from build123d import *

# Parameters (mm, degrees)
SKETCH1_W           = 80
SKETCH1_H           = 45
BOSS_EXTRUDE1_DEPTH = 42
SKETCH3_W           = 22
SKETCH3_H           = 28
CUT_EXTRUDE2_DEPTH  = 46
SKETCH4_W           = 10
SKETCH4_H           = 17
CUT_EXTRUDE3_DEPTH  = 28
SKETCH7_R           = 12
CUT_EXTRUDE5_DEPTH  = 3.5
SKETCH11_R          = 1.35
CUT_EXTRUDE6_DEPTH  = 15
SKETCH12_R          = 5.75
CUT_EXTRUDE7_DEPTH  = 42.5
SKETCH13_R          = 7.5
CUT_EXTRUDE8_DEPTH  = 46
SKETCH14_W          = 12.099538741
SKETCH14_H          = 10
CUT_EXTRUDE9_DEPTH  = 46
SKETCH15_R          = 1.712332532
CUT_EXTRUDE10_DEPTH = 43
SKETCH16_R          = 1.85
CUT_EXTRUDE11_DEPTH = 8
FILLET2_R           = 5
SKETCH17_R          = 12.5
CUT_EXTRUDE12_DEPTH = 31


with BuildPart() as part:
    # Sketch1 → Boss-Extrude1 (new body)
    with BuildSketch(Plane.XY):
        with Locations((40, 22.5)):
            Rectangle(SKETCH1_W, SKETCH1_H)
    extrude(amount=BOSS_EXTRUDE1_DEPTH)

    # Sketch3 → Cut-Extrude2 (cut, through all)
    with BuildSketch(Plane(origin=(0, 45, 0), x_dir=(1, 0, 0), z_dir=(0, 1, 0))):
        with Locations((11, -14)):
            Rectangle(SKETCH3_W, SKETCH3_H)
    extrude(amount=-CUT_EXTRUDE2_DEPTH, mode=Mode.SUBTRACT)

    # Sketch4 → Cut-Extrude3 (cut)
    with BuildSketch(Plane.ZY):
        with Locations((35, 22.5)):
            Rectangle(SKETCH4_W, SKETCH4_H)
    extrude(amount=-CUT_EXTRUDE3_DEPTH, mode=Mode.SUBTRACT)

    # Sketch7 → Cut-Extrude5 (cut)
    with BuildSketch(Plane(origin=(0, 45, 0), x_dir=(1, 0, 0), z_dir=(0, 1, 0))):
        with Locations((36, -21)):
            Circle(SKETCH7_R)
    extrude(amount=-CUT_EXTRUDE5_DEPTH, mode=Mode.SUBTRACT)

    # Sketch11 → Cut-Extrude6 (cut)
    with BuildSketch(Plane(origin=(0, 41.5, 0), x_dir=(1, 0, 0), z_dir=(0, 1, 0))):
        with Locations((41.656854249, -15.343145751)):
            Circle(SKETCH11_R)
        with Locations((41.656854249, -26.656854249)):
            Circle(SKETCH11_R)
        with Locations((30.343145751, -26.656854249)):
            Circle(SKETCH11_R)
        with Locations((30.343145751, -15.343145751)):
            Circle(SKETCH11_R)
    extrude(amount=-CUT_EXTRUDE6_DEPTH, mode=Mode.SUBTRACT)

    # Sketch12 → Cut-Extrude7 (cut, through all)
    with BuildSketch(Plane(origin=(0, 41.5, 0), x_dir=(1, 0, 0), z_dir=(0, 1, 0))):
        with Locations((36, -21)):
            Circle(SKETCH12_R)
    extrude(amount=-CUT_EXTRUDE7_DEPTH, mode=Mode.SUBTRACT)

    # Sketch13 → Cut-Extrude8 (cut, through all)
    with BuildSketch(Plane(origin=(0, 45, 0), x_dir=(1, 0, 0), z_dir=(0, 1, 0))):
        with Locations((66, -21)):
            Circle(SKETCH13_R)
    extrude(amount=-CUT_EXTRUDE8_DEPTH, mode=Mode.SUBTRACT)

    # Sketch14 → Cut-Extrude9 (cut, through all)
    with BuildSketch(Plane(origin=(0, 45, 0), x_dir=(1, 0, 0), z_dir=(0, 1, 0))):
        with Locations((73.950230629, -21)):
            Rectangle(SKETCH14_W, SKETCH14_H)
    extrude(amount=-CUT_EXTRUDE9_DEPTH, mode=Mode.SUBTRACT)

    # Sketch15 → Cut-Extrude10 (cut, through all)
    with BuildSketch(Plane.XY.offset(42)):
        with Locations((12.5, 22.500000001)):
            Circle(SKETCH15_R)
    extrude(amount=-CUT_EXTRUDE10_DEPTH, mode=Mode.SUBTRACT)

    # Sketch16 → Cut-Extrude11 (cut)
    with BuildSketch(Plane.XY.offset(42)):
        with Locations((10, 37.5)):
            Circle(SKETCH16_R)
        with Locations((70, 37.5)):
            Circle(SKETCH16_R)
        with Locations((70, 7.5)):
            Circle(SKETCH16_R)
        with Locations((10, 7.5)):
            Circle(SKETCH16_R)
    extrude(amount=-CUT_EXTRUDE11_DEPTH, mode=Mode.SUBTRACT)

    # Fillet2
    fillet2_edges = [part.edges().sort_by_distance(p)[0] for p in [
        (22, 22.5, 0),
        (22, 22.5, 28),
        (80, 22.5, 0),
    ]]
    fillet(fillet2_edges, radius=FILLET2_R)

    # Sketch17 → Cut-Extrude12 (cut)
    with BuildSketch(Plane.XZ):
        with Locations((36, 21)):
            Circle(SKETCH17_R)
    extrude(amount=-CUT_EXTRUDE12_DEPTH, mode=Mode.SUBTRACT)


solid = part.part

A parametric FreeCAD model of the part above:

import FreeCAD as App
import Part
import Sketcher
from FreeCAD import Vector
Q = App.Units.Quantity


def edges_at(feature, points):
    """Names of the edges that pass closest to the given points."""
    edges = feature.Shape.Edges
    near = lambda p: min(range(len(edges)), key=lambda i: edges[i].distToShape(Part.Vertex(*p))[0])
    return sorted({f"Edge{near(p) + 1}" for p in points})

doc = App.newDocument("Part")
params = doc.addObject("Spreadsheet::Sheet", "Params")
for row, (alias, value) in enumerate([
    ("sketch1_width", "80 mm"),
    ("sketch1_height", "45 mm"),
    ("pad1_length", "42 mm"),
    ("sketch2_width", "22 mm"),
    ("sketch2_height", "28 mm"),
    ("sketch3_width", "17 mm"),
    ("sketch3_height", "10 mm"),
    ("pocket2_length", "28 mm"),
    ("sketch4_diameter", "24 mm"),
    ("pocket3_length", "3.5 mm"),
    ("sketch5_diameter", "2.7 mm"),
    ("pocket4_length", "15 mm"),
    ("sketch6_diameter", "11.5 mm"),
    ("sketch7_diameter", "15 mm"),
    ("sketch8_height", "10 mm"),
    ("sketch10_diameter", "3.7 mm"),
    ("pocket9_length", "8 mm"),
    ("fillet_radius", "5 mm"),
    ("sketch11_diameter", "25 mm"),
    ("pocket10_length", "31 mm"),
], start=1):
    params.set(f"A{row}", alias)
    params.set(f"B{row}", "=" + value)
    params.setAlias(f"B{row}", alias)

body = doc.addObject("PartDesign::Body", "Body")

# Sketch on XY plane
sketch1 = body.newObject("Sketcher::SketchObject", "Sketch")
sketch1.AttachmentSupport = (doc.getObject("XY_Plane"), [""])
sketch1.MapMode = "FlatFace"
sketch1.addGeometry(Part.LineSegment(Vector(0, 45, 0), Vector(0, 0, 0)), False)
sketch1.addGeometry(Part.LineSegment(Vector(0, 0, 0), Vector(80, 0, 0)), False)
sketch1.addGeometry(Part.LineSegment(Vector(80, 0, 0), Vector(80, 45, 0)), False)
sketch1.addGeometry(Part.LineSegment(Vector(80, 45, 0), Vector(0, 45, 0)), False)
sketch1.addConstraint(Sketcher.Constraint("Coincident", 0, 2, 1, 1))
sketch1.addConstraint(Sketcher.Constraint("Coincident", 1, 2, 2, 1))
sketch1.addConstraint(Sketcher.Constraint("Coincident", 2, 2, 3, 1))
sketch1.addConstraint(Sketcher.Constraint("Coincident", 3, 2, 0, 1))
sketch1.addConstraint(Sketcher.Constraint("Vertical", 0))
sketch1.addConstraint(Sketcher.Constraint("Horizontal", 1))
sketch1.addConstraint(Sketcher.Constraint("Vertical", 2))
sketch1.addConstraint(Sketcher.Constraint("Horizontal", 3))
sketch1.addConstraint(Sketcher.Constraint("Coincident", 0, 2, -1, 1))
sketch1.addConstraint(Sketcher.Constraint("DistanceX", 1, 1, 1, 2, Q("80 mm")))
sketch1.addConstraint(Sketcher.Constraint("DistanceY", 0, 2, 0, 1, Q("45 mm")))
sketch1.setExpression("Constraints[9]", "Params.sketch1_width")
sketch1.setExpression("Constraints[10]", "Params.sketch1_height")
pad1 = body.newObject("PartDesign::Pad", "Pad")
pad1.Profile = sketch1
pad1.setExpression("Length", "Params.pad1_length")

# Sketch on XZ plane
sketch2 = body.newObject("Sketcher::SketchObject", "Sketch001")
sketch2.AttachmentSupport = (doc.getObject("XZ_Plane"), [""])
sketch2.MapMode = "FlatFace"
sketch2.AttachmentOffset = App.Placement(Vector(0, 0, -45), App.Rotation())
sketch2.addGeometry(Part.LineSegment(Vector(0, 0, 0), Vector(0, 28, 0)), False)
sketch2.addGeometry(Part.LineSegment(Vector(0, 28, 0), Vector(22, 28, 0)), False)
sketch2.addGeometry(Part.LineSegment(Vector(22, 28, 0), Vector(22, 0, 0)), False)
sketch2.addGeometry(Part.LineSegment(Vector(22, 0, 0), Vector(0, 0, 0)), False)
sketch2.addConstraint(Sketcher.Constraint("Coincident", 0, 2, 1, 1))
sketch2.addConstraint(Sketcher.Constraint("Coincident", 1, 2, 2, 1))
sketch2.addConstraint(Sketcher.Constraint("Coincident", 2, 2, 3, 1))
sketch2.addConstraint(Sketcher.Constraint("Coincident", 3, 2, 0, 1))
sketch2.addConstraint(Sketcher.Constraint("Vertical", 0))
sketch2.addConstraint(Sketcher.Constraint("Horizontal", 1))
sketch2.addConstraint(Sketcher.Constraint("Vertical", 2))
sketch2.addConstraint(Sketcher.Constraint("Horizontal", 3))
sketch2.addConstraint(Sketcher.Constraint("Coincident", 3, 2, -1, 1))
sketch2.addConstraint(Sketcher.Constraint("DistanceX", 1, 1, 1, 2, Q("22 mm")))
sketch2.addConstraint(Sketcher.Constraint("DistanceY", 0, 1, 0, 2, Q("28 mm")))
sketch2.setExpression("Constraints[9]", "Params.sketch2_width")
sketch2.setExpression("Constraints[10]", "Params.sketch2_height")
pocket1 = body.newObject("PartDesign::Pocket", "Pocket")
pocket1.Profile = sketch2
pocket1.Type = "ThroughAll"
pocket1.Reversed = True

# Sketch on YZ plane
sketch3 = body.newObject("Sketcher::SketchObject", "Sketch002")
sketch3.AttachmentSupport = (doc.getObject("YZ_Plane"), [""])
sketch3.MapMode = "FlatFace"
sketch3.addGeometry(Part.LineSegment(Vector(31, 30, 0), Vector(14, 30, 0)), False)
sketch3.addGeometry(Part.LineSegment(Vector(14, 30, 0), Vector(14, 40, 0)), False)
sketch3.addGeometry(Part.LineSegment(Vector(14, 40, 0), Vector(31, 40, 0)), False)
sketch3.addGeometry(Part.LineSegment(Vector(31, 40, 0), Vector(31, 30, 0)), False)
sketch3.addConstraint(Sketcher.Constraint("Coincident", 0, 2, 1, 1))
sketch3.addConstraint(Sketcher.Constraint("Coincident", 1, 2, 2, 1))
sketch3.addConstraint(Sketcher.Constraint("Coincident", 2, 2, 3, 1))
sketch3.addConstraint(Sketcher.Constraint("Coincident", 3, 2, 0, 1))
sketch3.addConstraint(Sketcher.Constraint("Horizontal", 0))
sketch3.addConstraint(Sketcher.Constraint("Vertical", 1))
sketch3.addConstraint(Sketcher.Constraint("Horizontal", 2))
sketch3.addConstraint(Sketcher.Constraint("Vertical", 3))
sketch3.addConstraint(Sketcher.Constraint("DistanceX", 0, 2, 0, 1, Q("17 mm")))
sketch3.addConstraint(Sketcher.Constraint("DistanceY", 1, 1, 1, 2, Q("10 mm")))
sketch3.addConstraint(Sketcher.Constraint("DistanceX", -1, 1, 0, 2, Q("14 mm")))
sketch3.addConstraint(Sketcher.Constraint("DistanceY", -1, 1, 0, 2, Q("30 mm")))
sketch3.setExpression("Constraints[8]", "Params.sketch3_width")
sketch3.setExpression("Constraints[9]", "Params.sketch3_height")
pocket2 = body.newObject("PartDesign::Pocket", "Pocket001")
pocket2.Profile = sketch3
pocket2.setExpression("Length", "Params.pocket2_length")
pocket2.Reversed = True

# Sketch on XZ plane
sketch4 = body.newObject("Sketcher::SketchObject", "Sketch003")
sketch4.AttachmentSupport = (doc.getObject("XZ_Plane"), [""])
sketch4.MapMode = "FlatFace"
sketch4.AttachmentOffset = App.Placement(Vector(0, 0, -45), App.Rotation())
sketch4.addGeometry(Part.Circle(Vector(36, 21, 0), Vector(0, 0, 1), 12), False)
sketch4.addConstraint(Sketcher.Constraint("Diameter", 0, Q("24 mm")))
sketch4.addConstraint(Sketcher.Constraint("DistanceX", -1, 1, 0, 3, Q("36 mm")))
sketch4.addConstraint(Sketcher.Constraint("DistanceY", -1, 1, 0, 3, Q("21 mm")))
sketch4.setExpression("Constraints[0]", "Params.sketch4_diameter")
pocket3 = body.newObject("PartDesign::Pocket", "Pocket002")
pocket3.Profile = sketch4
pocket3.setExpression("Length", "Params.pocket3_length")
pocket3.Reversed = True

# Sketch on XZ plane
sketch5 = body.newObject("Sketcher::SketchObject", "Sketch004")
sketch5.AttachmentSupport = (doc.getObject("XZ_Plane"), [""])
sketch5.MapMode = "FlatFace"
sketch5.AttachmentOffset = App.Placement(Vector(0, 0, -41.5), App.Rotation())
sketch5.addGeometry(Part.Circle(Vector(41.7, 15.3, 0), Vector(0, 0, 1), 1.4), False)
sketch5.addGeometry(Part.Circle(Vector(41.7, 26.7, 0), Vector(0, 0, 1), 1.4), False)
sketch5.addGeometry(Part.Circle(Vector(30.3, 26.7, 0), Vector(0, 0, 1), 1.4), False)
sketch5.addGeometry(Part.Circle(Vector(30.3, 15.3, 0), Vector(0, 0, 1), 1.4), False)
sketch5.addConstraint(Sketcher.Constraint("Equal", 0, 1))
sketch5.addConstraint(Sketcher.Constraint("Equal", 1, 2))
sketch5.addConstraint(Sketcher.Constraint("Equal", 2, 3))
sketch5.addConstraint(Sketcher.Constraint("Horizontal", 1, 3, 2, 3))
sketch5.addConstraint(Sketcher.Constraint("Horizontal", 0, 3, 3, 3))
sketch5.addConstraint(Sketcher.Constraint("Vertical", 0, 3, 1, 3))
sketch5.addConstraint(Sketcher.Constraint("Vertical", 2, 3, 3, 3))
sketch5.addConstraint(Sketcher.Constraint("Diameter", 0, Q("2.7 mm")))
sketch5.addConstraint(Sketcher.Constraint("DistanceY", 0, 3, 1, 3, Q("11.313708 mm")))
sketch5.addConstraint(Sketcher.Constraint("DistanceX", 2, 3, 1, 3, Q("11.313708 mm")))
sketch5.addConstraint(Sketcher.Constraint("DistanceX", -1, 1, 0, 3, Q("41.656854 mm")))
sketch5.addConstraint(Sketcher.Constraint("DistanceY", -1, 1, 0, 3, Q("15.343146 mm")))
sketch5.setExpression("Constraints[7]", "Params.sketch5_diameter")
pocket4 = body.newObject("PartDesign::Pocket", "Pocket003")
pocket4.Profile = sketch5
pocket4.setExpression("Length", "Params.pocket4_length")
pocket4.Reversed = True

# Sketch on XZ plane
sketch6 = body.newObject("Sketcher::SketchObject", "Sketch005")
sketch6.AttachmentSupport = (doc.getObject("XZ_Plane"), [""])
sketch6.MapMode = "FlatFace"
sketch6.AttachmentOffset = App.Placement(Vector(0, 0, -41.5), App.Rotation())
sketch6.addGeometry(Part.Circle(Vector(36, 21, 0), Vector(0, 0, 1), 6), False)
sketch6.addConstraint(Sketcher.Constraint("Diameter", 0, Q("11.5 mm")))
sketch6.addConstraint(Sketcher.Constraint("DistanceX", -1, 1, 0, 3, Q("36 mm")))
sketch6.addConstraint(Sketcher.Constraint("DistanceY", -1, 1, 0, 3, Q("21 mm")))
sketch6.setExpression("Constraints[0]", "Params.sketch6_diameter")
pocket5 = body.newObject("PartDesign::Pocket", "Pocket004")
pocket5.Profile = sketch6
pocket5.Type = "ThroughAll"
pocket5.Reversed = True

# Sketch on XZ plane
sketch7 = body.newObject("Sketcher::SketchObject", "Sketch006")
sketch7.AttachmentSupport = (doc.getObject("XZ_Plane"), [""])
sketch7.MapMode = "FlatFace"
sketch7.AttachmentOffset = App.Placement(Vector(0, 0, -45), App.Rotation())
sketch7.addGeometry(Part.Circle(Vector(66, 21, 0), Vector(0, 0, 1), 8), False)
sketch7.addConstraint(Sketcher.Constraint("Diameter", 0, Q("15 mm")))
sketch7.addConstraint(Sketcher.Constraint("DistanceX", -1, 1, 0, 3, Q("66 mm")))
sketch7.addConstraint(Sketcher.Constraint("DistanceY", -1, 1, 0, 3, Q("21 mm")))
sketch7.setExpression("Constraints[0]", "Params.sketch7_diameter")
pocket6 = body.newObject("PartDesign::Pocket", "Pocket005")
pocket6.Profile = sketch7
pocket6.Type = "ThroughAll"
pocket6.Reversed = True

# Sketch on XZ plane
sketch8 = body.newObject("Sketcher::SketchObject", "Sketch007")
sketch8.AttachmentSupport = (doc.getObject("XZ_Plane"), [""])
sketch8.MapMode = "FlatFace"
sketch8.AttachmentOffset = App.Placement(Vector(0, 0, -45), App.Rotation())
sketch8.addGeometry(Part.LineSegment(Vector(68, 16, 0), Vector(68, 26, 0)), False)
sketch8.addGeometry(Part.LineSegment(Vector(68, 26, 0), Vector(80, 26, 0)), False)
sketch8.addGeometry(Part.LineSegment(Vector(80, 26, 0), Vector(80, 16, 0)), False)
sketch8.addGeometry(Part.LineSegment(Vector(80, 16, 0), Vector(68, 16, 0)), False)
sketch8.addConstraint(Sketcher.Constraint("Coincident", 0, 2, 1, 1))
sketch8.addConstraint(Sketcher.Constraint("Coincident", 1, 2, 2, 1))
sketch8.addConstraint(Sketcher.Constraint("Coincident", 2, 2, 3, 1))
sketch8.addConstraint(Sketcher.Constraint("Coincident", 3, 2, 0, 1))
sketch8.addConstraint(Sketcher.Constraint("Vertical", 0))
sketch8.addConstraint(Sketcher.Constraint("Horizontal", 1))
sketch8.addConstraint(Sketcher.Constraint("Vertical", 2))
sketch8.addConstraint(Sketcher.Constraint("Horizontal", 3))
sketch8.addConstraint(Sketcher.Constraint("DistanceY", 0, 1, 0, 2, Q("10 mm")))
sketch8.addConstraint(Sketcher.Constraint("DistanceY", -1, 1, 0, 2, Q("26 mm")))
sketch8.addConstraint(Sketcher.Constraint("DistanceX", -1, 1, 1, 2, Q("80 mm")))
sketch8.addConstraint(Sketcher.Constraint("DistanceX", 1, 1, 1, 2, Q("12.099539 mm")))
sketch8.setExpression("Constraints[8]", "Params.sketch8_height")
pocket7 = body.newObject("PartDesign::Pocket", "Pocket006")
pocket7.Profile = sketch8
pocket7.Type = "ThroughAll"
pocket7.Reversed = True

# Sketch on XY plane
sketch9 = body.newObject("Sketcher::SketchObject", "Sketch008")
sketch9.AttachmentSupport = (doc.getObject("XY_Plane"), [""])
sketch9.MapMode = "FlatFace"
sketch9.AttachmentOffset = App.Placement(Vector(0, 0, 42), App.Rotation())
sketch9.addGeometry(Part.Circle(Vector(12.5, 22.5, 0), Vector(0, 0, 1), 1.7), False)
sketch9.addConstraint(Sketcher.Constraint("DistanceX", -1, 1, 0, 3, Q("12.5 mm")))
sketch9.addConstraint(Sketcher.Constraint("DistanceY", -1, 1, 0, 3, Q("22.5 mm")))
sketch9.addConstraint(Sketcher.Constraint("Diameter", 0, Q("3.424665 mm")))
pocket8 = body.newObject("PartDesign::Pocket", "Pocket007")
pocket8.Profile = sketch9
pocket8.Type = "ThroughAll"

# Sketch on XY plane
sketch10 = body.newObject("Sketcher::SketchObject", "Sketch009")
sketch10.AttachmentSupport = (doc.getObject("XY_Plane"), [""])
sketch10.MapMode = "FlatFace"
sketch10.AttachmentOffset = App.Placement(Vector(0, 0, 42), App.Rotation())
sketch10.addGeometry(Part.Circle(Vector(10, 37.5, 0), Vector(0, 0, 1), 1.9), False)
sketch10.addGeometry(Part.Circle(Vector(70, 37.5, 0), Vector(0, 0, 1), 1.9), False)
sketch10.addGeometry(Part.Circle(Vector(70, 7.5, 0), Vector(0, 0, 1), 1.9), False)
sketch10.addGeometry(Part.Circle(Vector(10, 7.5, 0), Vector(0, 0, 1), 1.9), False)
sketch10.addConstraint(Sketcher.Constraint("Equal", 0, 1))
sketch10.addConstraint(Sketcher.Constraint("Equal", 1, 2))
sketch10.addConstraint(Sketcher.Constraint("Equal", 2, 3))
sketch10.addConstraint(Sketcher.Constraint("Horizontal", 0, 3, 1, 3))
sketch10.addConstraint(Sketcher.Constraint("Horizontal", 2, 3, 3, 3))
sketch10.addConstraint(Sketcher.Constraint("Vertical", 1, 3, 2, 3))
sketch10.addConstraint(Sketcher.Constraint("Vertical", 0, 3, 3, 3))
sketch10.addConstraint(Sketcher.Constraint("Diameter", 0, Q("3.7 mm")))
sketch10.addConstraint(Sketcher.Constraint("DistanceX", -1, 1, 0, 3, Q("10 mm")))
sketch10.addConstraint(Sketcher.Constraint("DistanceX", -1, 1, 1, 3, Q("70 mm")))
sketch10.addConstraint(Sketcher.Constraint("DistanceY", 2, 3, 1, 3, Q("30 mm")))
sketch10.addConstraint(Sketcher.Constraint("DistanceY", -1, 1, 0, 3, Q("37.5 mm")))
sketch10.setExpression("Constraints[7]", "Params.sketch10_diameter")
pocket9 = body.newObject("PartDesign::Pocket", "Pocket008")
pocket9.Profile = sketch10
pocket9.setExpression("Length", "Params.pocket9_length")
doc.recompute()

fillet = body.newObject("PartDesign::Fillet", "Fillet")
fillet.Base = (pocket9, edges_at(pocket9, [(22, 22.5, 0), (22, 22.5, 28), (80, 22.5, 0)]))
fillet.setExpression("Radius", "Params.fillet_radius")

# Sketch on XZ plane
sketch11 = body.newObject("Sketcher::SketchObject", "Sketch010")
sketch11.AttachmentSupport = (doc.getObject("XZ_Plane"), [""])
sketch11.MapMode = "FlatFace"
sketch11.addGeometry(Part.Circle(Vector(36, 21, 0), Vector(0, 0, 1), 12), False)
sketch11.addConstraint(Sketcher.Constraint("Diameter", 0, Q("25 mm")))
sketch11.addConstraint(Sketcher.Constraint("DistanceX", -1, 1, 0, 3, Q("36 mm")))
sketch11.addConstraint(Sketcher.Constraint("DistanceY", -1, 1, 0, 3, Q("21 mm")))
sketch11.setExpression("Constraints[0]", "Params.sketch11_diameter")
pocket10 = body.newObject("PartDesign::Pocket", "Pocket009")
pocket10.Profile = sketch11
pocket10.setExpression("Length", "Params.pocket10_length")

doc.recompute()
